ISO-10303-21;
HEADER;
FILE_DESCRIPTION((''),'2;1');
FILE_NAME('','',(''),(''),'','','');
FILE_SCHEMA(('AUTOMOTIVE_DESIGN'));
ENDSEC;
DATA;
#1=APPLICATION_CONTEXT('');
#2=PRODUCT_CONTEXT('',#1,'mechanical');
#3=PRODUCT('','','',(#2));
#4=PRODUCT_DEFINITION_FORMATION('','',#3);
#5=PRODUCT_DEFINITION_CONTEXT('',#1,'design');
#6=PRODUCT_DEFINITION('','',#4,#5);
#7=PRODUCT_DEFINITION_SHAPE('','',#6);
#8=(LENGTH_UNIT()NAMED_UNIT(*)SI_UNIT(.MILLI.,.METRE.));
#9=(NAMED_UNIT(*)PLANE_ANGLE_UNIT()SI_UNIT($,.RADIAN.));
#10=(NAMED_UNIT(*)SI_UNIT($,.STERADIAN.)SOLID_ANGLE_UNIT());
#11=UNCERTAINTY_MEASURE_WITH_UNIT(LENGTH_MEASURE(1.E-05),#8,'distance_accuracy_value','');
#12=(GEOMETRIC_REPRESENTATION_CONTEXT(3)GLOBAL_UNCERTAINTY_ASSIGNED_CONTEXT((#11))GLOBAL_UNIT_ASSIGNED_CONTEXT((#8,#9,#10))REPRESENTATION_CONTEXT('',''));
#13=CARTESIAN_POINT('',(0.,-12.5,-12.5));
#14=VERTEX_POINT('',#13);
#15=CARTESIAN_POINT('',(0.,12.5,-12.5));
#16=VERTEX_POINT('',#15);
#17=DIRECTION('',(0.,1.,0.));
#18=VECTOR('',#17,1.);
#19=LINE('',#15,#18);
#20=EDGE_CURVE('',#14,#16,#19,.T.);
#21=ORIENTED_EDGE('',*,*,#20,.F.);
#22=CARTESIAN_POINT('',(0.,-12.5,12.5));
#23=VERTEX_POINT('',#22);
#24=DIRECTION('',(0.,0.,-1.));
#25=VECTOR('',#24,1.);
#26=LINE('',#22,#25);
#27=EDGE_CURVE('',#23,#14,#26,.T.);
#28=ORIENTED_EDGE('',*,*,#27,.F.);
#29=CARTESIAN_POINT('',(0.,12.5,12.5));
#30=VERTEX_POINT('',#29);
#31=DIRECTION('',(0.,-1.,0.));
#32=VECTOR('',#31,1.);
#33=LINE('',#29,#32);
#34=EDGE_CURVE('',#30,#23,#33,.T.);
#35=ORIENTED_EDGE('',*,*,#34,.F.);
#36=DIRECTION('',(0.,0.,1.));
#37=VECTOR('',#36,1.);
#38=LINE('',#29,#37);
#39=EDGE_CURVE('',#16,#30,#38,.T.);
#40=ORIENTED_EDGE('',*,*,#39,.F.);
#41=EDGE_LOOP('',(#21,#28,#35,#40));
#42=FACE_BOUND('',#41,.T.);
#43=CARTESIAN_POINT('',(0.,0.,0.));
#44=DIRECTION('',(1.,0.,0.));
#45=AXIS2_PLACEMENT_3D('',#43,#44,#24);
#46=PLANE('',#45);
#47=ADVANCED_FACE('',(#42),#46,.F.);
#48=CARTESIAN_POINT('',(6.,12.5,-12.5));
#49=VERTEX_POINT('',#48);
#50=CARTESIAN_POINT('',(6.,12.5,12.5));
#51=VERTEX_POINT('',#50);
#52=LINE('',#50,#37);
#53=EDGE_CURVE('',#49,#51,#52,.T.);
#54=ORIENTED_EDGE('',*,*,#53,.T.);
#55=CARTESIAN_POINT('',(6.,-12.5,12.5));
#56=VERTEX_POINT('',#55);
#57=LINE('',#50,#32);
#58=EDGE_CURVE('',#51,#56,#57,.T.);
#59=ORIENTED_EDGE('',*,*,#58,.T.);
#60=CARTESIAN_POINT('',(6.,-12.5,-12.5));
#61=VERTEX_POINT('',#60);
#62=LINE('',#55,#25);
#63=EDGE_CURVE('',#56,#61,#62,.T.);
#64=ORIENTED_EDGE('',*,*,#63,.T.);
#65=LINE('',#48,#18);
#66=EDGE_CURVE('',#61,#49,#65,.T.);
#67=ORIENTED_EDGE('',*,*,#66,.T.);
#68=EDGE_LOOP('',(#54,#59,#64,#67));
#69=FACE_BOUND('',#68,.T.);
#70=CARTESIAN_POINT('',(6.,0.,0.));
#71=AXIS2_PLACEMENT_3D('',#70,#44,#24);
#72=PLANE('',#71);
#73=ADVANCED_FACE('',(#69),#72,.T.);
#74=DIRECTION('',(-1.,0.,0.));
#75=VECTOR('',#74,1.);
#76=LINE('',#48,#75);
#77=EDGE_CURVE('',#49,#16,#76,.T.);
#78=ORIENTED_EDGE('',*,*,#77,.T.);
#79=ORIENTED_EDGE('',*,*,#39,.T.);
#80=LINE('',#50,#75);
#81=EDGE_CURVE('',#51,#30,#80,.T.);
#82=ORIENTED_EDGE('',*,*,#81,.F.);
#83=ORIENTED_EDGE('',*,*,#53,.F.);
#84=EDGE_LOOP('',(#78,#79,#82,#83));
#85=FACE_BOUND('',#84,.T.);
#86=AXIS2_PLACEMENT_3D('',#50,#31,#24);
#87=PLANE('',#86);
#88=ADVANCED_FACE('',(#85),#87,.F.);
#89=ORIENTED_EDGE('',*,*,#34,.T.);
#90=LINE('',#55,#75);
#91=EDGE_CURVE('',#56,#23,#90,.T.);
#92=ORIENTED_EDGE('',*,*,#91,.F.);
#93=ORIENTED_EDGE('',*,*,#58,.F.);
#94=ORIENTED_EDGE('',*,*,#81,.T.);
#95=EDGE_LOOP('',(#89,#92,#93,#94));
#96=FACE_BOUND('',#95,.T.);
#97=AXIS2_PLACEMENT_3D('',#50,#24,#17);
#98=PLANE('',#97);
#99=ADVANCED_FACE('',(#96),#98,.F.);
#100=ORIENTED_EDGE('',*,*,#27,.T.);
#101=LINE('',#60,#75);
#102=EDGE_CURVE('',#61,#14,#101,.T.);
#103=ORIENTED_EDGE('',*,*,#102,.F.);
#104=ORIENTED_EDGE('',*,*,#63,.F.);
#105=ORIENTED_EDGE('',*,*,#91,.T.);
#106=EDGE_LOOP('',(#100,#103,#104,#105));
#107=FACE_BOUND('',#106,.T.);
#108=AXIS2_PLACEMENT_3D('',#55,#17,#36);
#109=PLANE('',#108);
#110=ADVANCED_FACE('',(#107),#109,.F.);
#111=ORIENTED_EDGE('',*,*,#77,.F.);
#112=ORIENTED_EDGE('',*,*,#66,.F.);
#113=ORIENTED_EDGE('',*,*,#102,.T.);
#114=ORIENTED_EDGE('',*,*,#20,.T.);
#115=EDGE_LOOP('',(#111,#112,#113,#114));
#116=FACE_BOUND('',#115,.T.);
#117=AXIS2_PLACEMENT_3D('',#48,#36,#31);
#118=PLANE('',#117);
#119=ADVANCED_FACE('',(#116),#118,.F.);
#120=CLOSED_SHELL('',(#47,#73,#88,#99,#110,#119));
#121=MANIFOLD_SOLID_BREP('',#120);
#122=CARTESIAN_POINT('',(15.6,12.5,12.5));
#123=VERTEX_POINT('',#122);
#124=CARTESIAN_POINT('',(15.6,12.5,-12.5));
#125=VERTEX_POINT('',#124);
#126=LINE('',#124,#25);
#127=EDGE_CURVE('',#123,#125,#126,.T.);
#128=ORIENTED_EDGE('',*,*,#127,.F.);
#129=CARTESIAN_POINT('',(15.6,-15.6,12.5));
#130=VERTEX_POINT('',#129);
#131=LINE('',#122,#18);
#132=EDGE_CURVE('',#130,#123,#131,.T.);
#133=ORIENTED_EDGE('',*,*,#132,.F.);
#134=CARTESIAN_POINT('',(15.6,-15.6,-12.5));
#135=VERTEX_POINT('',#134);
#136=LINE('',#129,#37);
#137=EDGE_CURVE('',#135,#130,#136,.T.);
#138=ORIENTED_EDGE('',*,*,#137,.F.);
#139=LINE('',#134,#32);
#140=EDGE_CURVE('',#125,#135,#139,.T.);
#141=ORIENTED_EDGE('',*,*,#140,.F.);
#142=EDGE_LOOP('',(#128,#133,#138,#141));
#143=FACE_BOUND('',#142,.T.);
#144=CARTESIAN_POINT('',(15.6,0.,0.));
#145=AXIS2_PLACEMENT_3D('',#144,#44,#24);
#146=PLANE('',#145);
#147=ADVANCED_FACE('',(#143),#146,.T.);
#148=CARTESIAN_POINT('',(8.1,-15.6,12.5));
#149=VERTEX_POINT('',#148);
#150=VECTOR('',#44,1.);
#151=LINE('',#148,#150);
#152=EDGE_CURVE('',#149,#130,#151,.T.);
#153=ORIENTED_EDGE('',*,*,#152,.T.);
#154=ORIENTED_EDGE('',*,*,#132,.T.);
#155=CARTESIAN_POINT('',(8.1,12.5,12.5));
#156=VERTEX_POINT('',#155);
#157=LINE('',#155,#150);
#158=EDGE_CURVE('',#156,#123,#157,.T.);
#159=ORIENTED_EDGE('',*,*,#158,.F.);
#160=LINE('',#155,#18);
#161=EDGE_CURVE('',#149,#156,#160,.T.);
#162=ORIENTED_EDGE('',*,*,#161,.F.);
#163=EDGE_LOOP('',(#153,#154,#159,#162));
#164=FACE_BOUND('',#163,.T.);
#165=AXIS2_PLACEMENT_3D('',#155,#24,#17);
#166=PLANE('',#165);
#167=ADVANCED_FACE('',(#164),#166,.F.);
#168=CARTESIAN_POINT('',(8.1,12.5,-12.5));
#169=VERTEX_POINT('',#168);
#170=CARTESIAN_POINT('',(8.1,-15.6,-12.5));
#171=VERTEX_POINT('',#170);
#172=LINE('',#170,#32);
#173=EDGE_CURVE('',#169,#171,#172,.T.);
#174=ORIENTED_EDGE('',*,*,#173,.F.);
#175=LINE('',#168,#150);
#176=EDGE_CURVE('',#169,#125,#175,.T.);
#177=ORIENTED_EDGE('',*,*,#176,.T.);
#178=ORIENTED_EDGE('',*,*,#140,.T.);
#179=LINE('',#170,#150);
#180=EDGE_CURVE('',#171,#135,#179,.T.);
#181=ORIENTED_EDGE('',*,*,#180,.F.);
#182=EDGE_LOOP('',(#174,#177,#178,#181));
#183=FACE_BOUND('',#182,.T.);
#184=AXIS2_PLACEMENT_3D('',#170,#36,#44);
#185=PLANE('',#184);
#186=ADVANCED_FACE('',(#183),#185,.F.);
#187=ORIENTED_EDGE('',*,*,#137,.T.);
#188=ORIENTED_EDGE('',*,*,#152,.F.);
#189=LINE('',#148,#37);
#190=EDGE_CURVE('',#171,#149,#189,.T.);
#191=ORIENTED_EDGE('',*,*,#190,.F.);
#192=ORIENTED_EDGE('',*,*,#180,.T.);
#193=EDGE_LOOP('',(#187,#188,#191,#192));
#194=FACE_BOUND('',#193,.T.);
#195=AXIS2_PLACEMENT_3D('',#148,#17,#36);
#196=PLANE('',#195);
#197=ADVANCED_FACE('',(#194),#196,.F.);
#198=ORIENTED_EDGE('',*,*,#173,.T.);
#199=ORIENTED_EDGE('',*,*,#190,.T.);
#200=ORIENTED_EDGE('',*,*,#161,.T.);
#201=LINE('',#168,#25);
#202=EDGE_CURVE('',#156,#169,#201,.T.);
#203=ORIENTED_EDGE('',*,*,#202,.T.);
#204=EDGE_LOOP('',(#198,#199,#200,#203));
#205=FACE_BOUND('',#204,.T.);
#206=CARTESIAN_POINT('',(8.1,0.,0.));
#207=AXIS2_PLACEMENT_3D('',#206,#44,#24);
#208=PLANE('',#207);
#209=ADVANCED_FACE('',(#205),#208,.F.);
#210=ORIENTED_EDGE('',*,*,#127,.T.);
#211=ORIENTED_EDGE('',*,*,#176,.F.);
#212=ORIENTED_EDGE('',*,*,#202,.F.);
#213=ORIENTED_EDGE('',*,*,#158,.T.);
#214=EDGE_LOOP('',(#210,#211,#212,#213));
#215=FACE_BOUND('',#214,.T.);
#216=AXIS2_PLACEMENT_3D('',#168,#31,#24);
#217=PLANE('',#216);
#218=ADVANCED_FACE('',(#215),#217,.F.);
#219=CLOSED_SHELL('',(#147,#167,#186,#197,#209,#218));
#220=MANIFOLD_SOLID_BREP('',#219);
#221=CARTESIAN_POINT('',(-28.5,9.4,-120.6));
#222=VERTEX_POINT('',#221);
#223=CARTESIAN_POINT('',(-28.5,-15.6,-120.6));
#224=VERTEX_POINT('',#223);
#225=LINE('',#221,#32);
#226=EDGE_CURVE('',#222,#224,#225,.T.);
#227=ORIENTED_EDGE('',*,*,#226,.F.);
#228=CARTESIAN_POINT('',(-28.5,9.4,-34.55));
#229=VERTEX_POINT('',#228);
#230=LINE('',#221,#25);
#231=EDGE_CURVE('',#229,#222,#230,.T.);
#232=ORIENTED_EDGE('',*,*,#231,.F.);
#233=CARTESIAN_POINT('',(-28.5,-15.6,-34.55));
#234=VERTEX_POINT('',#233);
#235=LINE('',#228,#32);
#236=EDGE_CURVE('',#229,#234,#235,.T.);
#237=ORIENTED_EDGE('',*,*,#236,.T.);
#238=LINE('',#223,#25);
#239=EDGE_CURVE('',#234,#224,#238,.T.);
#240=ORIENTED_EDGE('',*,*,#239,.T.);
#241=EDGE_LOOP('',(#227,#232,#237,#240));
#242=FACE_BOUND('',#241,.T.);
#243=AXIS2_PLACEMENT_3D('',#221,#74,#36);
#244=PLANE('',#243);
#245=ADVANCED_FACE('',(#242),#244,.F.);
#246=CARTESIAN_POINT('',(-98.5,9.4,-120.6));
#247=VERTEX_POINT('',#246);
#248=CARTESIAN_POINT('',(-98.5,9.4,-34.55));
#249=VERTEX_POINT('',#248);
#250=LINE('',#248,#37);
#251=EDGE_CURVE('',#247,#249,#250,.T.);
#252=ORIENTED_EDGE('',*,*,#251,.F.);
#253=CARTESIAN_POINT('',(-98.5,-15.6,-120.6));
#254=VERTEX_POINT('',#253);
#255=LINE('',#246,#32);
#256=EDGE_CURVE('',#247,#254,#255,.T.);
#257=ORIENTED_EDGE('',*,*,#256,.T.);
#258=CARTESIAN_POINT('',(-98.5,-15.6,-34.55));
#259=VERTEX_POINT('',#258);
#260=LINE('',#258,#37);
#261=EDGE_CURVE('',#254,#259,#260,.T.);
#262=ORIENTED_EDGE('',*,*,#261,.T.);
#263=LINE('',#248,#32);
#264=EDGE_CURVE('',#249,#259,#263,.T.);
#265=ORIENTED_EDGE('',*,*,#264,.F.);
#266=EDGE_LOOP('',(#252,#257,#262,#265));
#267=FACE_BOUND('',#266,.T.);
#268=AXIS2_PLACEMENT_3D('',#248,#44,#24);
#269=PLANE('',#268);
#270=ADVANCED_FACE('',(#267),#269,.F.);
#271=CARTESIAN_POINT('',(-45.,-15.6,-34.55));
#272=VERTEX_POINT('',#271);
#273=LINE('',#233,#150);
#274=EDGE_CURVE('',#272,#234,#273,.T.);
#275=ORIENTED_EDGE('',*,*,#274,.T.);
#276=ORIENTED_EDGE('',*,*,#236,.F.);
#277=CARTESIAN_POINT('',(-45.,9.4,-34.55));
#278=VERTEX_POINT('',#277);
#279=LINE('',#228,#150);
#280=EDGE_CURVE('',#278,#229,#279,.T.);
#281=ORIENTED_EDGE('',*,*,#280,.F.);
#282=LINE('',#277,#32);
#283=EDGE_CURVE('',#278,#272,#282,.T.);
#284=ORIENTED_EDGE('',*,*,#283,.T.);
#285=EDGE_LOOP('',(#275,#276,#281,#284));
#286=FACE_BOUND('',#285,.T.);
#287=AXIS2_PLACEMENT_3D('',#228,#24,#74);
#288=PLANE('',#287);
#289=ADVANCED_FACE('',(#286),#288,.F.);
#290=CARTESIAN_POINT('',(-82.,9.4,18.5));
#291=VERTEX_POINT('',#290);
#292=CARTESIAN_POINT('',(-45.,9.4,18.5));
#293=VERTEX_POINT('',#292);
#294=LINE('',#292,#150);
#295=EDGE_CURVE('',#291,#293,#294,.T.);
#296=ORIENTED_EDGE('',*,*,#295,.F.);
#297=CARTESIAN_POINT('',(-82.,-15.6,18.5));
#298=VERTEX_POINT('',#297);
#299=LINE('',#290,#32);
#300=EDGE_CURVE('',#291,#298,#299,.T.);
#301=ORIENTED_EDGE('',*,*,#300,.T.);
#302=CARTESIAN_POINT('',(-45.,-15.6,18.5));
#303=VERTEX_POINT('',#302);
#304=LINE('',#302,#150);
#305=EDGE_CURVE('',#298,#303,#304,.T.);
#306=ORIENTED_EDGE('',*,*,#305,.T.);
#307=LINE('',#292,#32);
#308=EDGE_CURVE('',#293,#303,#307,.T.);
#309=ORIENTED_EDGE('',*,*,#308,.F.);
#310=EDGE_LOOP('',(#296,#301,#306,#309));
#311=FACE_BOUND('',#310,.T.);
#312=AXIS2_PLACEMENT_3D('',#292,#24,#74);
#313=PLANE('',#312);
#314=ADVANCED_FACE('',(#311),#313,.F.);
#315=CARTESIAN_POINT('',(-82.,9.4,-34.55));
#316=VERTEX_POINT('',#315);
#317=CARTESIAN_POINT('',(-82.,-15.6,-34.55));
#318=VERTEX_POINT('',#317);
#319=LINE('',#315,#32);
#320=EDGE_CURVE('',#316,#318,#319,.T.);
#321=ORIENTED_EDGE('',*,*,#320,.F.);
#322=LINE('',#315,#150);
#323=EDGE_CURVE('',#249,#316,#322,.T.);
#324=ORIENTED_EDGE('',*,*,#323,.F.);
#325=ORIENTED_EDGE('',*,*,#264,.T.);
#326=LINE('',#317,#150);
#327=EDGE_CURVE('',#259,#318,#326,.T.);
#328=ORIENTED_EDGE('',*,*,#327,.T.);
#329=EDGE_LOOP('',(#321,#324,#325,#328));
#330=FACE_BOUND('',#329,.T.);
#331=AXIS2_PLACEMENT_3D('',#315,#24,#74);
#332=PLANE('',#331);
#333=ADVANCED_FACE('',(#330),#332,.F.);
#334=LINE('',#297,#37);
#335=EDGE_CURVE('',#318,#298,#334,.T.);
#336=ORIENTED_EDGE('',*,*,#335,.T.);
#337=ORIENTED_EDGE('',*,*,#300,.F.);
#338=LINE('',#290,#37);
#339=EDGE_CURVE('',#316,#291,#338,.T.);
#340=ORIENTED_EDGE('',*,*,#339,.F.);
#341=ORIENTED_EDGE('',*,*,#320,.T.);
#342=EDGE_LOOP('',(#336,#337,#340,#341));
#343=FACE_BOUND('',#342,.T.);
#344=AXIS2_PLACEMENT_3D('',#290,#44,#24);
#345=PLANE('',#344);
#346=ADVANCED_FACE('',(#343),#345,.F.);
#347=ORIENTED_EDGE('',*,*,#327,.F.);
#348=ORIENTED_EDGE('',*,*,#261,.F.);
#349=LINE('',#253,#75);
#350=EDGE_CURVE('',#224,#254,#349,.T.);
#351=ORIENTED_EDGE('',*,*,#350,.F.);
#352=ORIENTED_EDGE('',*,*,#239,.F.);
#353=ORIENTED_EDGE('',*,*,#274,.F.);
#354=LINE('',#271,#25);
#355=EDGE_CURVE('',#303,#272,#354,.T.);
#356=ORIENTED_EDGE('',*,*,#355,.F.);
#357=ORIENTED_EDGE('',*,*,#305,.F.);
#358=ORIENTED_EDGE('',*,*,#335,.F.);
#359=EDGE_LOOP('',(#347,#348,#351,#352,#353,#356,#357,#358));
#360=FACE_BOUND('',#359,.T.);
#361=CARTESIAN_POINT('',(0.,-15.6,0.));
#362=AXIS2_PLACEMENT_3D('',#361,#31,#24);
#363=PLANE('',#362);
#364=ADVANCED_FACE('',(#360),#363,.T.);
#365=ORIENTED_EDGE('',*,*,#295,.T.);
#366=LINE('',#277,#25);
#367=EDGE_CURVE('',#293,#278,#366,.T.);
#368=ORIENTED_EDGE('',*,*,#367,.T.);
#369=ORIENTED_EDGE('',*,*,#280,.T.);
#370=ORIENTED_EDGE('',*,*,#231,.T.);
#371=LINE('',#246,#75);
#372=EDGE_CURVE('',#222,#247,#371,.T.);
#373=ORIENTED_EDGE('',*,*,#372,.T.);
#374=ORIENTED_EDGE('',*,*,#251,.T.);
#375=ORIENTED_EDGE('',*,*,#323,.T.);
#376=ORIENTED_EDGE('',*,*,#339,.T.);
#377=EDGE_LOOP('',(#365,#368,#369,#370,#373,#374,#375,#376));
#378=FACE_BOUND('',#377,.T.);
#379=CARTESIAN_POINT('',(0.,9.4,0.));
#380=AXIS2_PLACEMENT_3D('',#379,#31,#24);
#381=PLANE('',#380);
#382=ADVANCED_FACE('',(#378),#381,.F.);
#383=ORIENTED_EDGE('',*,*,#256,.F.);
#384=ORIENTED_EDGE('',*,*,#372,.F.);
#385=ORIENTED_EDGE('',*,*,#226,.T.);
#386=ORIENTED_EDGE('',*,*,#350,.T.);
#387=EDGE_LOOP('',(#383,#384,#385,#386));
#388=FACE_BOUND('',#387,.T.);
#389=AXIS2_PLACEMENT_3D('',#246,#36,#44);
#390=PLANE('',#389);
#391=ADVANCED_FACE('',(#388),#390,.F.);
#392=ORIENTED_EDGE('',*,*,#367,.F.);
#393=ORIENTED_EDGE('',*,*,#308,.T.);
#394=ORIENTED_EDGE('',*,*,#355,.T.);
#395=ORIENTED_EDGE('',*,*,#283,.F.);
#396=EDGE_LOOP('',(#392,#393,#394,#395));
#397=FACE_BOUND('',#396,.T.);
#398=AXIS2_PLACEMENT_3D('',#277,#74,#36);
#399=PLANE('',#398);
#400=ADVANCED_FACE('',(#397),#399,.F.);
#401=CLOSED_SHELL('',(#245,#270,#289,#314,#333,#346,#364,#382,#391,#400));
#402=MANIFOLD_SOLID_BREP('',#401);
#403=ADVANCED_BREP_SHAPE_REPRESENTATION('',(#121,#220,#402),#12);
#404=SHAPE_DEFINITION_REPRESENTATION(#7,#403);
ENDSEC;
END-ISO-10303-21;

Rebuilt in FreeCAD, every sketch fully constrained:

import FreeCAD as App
import Part
import Sketcher

V = App.Vector


def add_polygon(sketch, points):
    """Adds a closed chain of lines whose ends are joined by coincident constraints."""
    first, n = sketch.GeometryCount, len(points)
    for a, b in zip(points, points[1:] + points[:1]):
        sketch.addGeometry(Part.LineSegment(App.Vector(*a, 0), App.Vector(*b, 0)), False)
    for i in range(n):
        sketch.addConstraint(Sketcher.Constraint("Coincident", first + i, 2, first + (i + 1) % n, 1))

doc = App.newDocument("Part")
body = doc.addObject("PartDesign::Body", "Body")

sketch1 = body.newObject("Sketcher::SketchObject", "Sketch")
sketch1.AttachmentSupport = (doc.getObject("YZ_Plane"), [""])
sketch1.MapMode = "FlatFace"
add_polygon(sketch1, [(12, 12), (-12, 12), (-12, -12), (12, -12)])
sketch1.addConstraint(Sketcher.Constraint("Horizontal", 0))
sketch1.addConstraint(Sketcher.Constraint("Vertical", 1))
sketch1.addConstraint(Sketcher.Constraint("Horizontal", 2))
sketch1.addConstraint(Sketcher.Constraint("Vertical", 3))
sketch1.addConstraint(Sketcher.Constraint("Symmetric", 0, 2, 2, 2, -1, 1))
sketch1.addConstraint(Sketcher.Constraint("Equal", 2, 1))
sketch1.addConstraint(Sketcher.Constraint("DistanceX", 0, 2, 0, 1, 25.0))
pad1 = body.newObject("PartDesign::Pad", "Pad")
pad1.Profile = sketch1
pad1.Length = 6
body2 = doc.addObject("PartDesign::Body", "Body001")

sketch2 = body2.newObject("Sketcher::SketchObject", "Sketch001")
sketch2.AttachmentSupport = (doc.getObject("YZ_Plane001"), [""])
sketch2.MapMode = "FlatFace"
sketch2.AttachmentOffset = App.Placement(V(0, 0, 15.6), App.Rotation())
add_polygon(sketch2, [(12, -12), (-16, -12), (-16, 12), (12, 12)])
sketch2.addConstraint(Sketcher.Constraint("Horizontal", 0))
sketch2.addConstraint(Sketcher.Constraint("Vertical", 1))
sketch2.addConstraint(Sketcher.Constraint("Horizontal", 2))
sketch2.addConstraint(Sketcher.Constraint("Vertical", 3))
sketch2.addConstraint(Sketcher.Constraint("DistanceY", 1, 1, 1, 2, 25.0))
sketch2.addConstraint(Sketcher.Constraint("DistanceX", 0, 2, 0, 1, 28.1))
sketch2.addConstraint(Sketcher.Constraint("DistanceX", 0, 2, -1, 1, 15.6))
sketch2.addConstraint(Sketcher.Constraint("DistanceY", 0, 2, -1, 1, 12.5))
pad2 = body2.newObject("PartDesign::Pad", "Pad001")
pad2.Profile = sketch2
pad2.Length = 7.5
pad2.Reversed = True
body3 = doc.addObject("PartDesign::Body", "Body002")

sketch3 = body3.newObject("Sketcher::SketchObject", "Sketch002")
sketch3.AttachmentSupport = (doc.getObject("XZ_Plane002"), [""])
sketch3.MapMode = "FlatFace"
sketch3.AttachmentOffset = App.Placement(V(0, 0, 15.6), App.Rotation())
add_polygon(sketch3, [(-28, -121), (-98, -121), (-98, -35), (-82, -35), (-82, 18), (-45, 18), (-45, -35), (-28, -35)])
sketch3.addConstraint(Sketcher.Constraint("Horizontal", 0))
sketch3.addConstraint(Sketcher.Constraint("Vertical", 1))
sketch3.addConstraint(Sketcher.Constraint("Horizontal", 2))
sketch3.addConstraint(Sketcher.Constraint("Vertical", 3))
sketch3.addConstraint(Sketcher.Constraint("Horizontal", 4))
sketch3.addConstraint(Sketcher.Constraint("Vertical", 5))
sketch3.addConstraint(Sketcher.Constraint("Horizontal", 6))
sketch3.addConstraint(Sketcher.Constraint("Vertical", 7))
sketch3.addConstraint(Sketcher.Constraint("Horizontal", 2, 2, 5, 2))
sketch3.addConstraint(Sketcher.Constraint("Equal", 2, 6))
sketch3.addConstraint(Sketcher.Constraint("DistanceX", 0, 2, 0, 1, 70.0))
sketch3.addConstraint(Sketcher.Constraint("DistanceX", 4, 1, 4, 2, 37.0))
sketch3.addConstraint(Sketcher.Constraint("DistanceX", 2, 2, -1, 1, 82.0))
sketch3.addConstraint(Sketcher.Constraint("DistanceY", 1, 1, 1, 2, 86.05))
sketch3.addConstraint(Sketcher.Constraint("DistanceY", 3, 1, 3, 2, 53.05))
sketch3.addConstraint(Sketcher.Constraint("DistanceY", 0, 2, -1, 1, 120.6))
pad3 = body3.newObject("PartDesign::Pad", "Pad002")
pad3.Profile = sketch3
pad3.Length = 25
pad3.Reversed = True

doc.recompute()
